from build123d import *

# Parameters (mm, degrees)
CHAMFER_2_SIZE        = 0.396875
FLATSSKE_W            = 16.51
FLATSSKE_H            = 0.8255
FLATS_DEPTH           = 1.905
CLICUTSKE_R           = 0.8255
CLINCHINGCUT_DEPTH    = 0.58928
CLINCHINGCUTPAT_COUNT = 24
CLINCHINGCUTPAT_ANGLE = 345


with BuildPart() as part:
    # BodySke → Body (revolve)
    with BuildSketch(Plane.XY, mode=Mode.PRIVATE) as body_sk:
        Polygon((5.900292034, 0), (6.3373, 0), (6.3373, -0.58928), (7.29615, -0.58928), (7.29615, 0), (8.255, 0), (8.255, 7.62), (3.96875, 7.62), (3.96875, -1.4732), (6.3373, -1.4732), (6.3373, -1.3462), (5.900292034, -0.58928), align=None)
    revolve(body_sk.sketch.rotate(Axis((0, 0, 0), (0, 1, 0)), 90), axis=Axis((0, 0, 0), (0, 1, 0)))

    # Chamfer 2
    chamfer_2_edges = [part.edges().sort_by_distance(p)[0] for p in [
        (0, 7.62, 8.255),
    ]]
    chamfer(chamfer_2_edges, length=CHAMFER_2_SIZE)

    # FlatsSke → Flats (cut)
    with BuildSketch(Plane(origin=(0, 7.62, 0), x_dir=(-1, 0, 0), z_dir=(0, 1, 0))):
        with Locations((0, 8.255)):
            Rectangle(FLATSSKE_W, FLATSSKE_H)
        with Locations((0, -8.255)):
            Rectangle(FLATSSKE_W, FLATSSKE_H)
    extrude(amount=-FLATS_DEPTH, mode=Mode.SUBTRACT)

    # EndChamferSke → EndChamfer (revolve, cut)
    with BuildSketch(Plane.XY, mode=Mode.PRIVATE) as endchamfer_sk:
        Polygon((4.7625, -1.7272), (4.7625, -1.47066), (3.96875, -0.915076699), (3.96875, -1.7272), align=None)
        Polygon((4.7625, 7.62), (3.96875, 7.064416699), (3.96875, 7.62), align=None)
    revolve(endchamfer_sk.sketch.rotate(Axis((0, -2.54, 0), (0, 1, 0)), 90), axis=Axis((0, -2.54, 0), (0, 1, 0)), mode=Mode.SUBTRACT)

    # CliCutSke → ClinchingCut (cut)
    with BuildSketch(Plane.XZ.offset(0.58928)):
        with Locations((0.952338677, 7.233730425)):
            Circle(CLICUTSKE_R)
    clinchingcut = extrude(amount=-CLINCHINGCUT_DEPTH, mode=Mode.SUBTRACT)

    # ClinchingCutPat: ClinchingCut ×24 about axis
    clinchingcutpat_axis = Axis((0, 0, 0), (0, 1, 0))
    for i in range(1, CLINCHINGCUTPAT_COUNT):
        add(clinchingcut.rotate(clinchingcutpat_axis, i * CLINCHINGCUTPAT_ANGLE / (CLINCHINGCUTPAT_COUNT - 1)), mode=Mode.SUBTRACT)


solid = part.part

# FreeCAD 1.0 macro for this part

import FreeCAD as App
import Part
import Sketcher
Q = App.Units.Quantity


def edges_at(feature, points):
    """Names of the edges that pass closest to the given points."""
    edges = feature.Shape.Edges
    near = lambda p: min(range(len(edges)), key=lambda i: edges[i].distToShape(Part.Vertex(*p))[0])
    return sorted({f"Edge{near(p) + 1}" for p in points})

doc = App.newDocument("Part")
body = doc.addObject("PartDesign::Body", "Body")

# Sketch on XY plane
sketch1 = body.newObject("Sketcher::SketchObject", "Sketch")
sketch1.AttachmentSupport = (doc.getObject("XY_Plane"), [""])
sketch1.MapMode = "FlatFace"
sketch1.addGeometry([
    Part.LineSegment(App.Vector(5.9, 0, 0), App.Vector(6.34, 0, 0)),  # 0
    Part.LineSegment(App.Vector(6.34, 0, 0), App.Vector(6.34, -0.59, 0)),  # 1
    Part.LineSegment(App.Vector(6.34, -0.59, 0), App.Vector(7.3, -0.59, 0)),  # 2
    Part.LineSegment(App.Vector(7.3, -0.59, 0), App.Vector(7.3, 0, 0)),  # 3
    Part.LineSegment(App.Vector(7.3, 0, 0), App.Vector(8.26, 0, 0)),  # 4
    Part.LineSegment(App.Vector(8.26, 0, 0), App.Vector(8.26, 7.62, 0)),  # 5
    Part.LineSegment(App.Vector(8.26, 7.62, 0), App.Vector(3.97, 7.62, 0)),  # 6
    Part.LineSegment(App.Vector(3.97, 7.62, 0), App.Vector(3.97, -1.47, 0)),  # 7
    Part.LineSegment(App.Vector(3.97, -1.47, 0), App.Vector(6.34, -1.47, 0)),  # 8
    Part.LineSegment(App.Vector(6.34, -1.47, 0), App.Vector(6.34, -1.35, 0)),  # 9
    Part.LineSegment(App.Vector(6.34, -1.35, 0), App.Vector(5.9, -0.59, 0)),  # 10
    Part.LineSegment(App.Vector(5.9, -0.59, 0), App.Vector(5.9, 0, 0)),  # 11
], False)
sketch1.addConstraint([
    Sketcher.Constraint("Coincident", 0, 2, 1, 1),
    Sketcher.Constraint("Coincident", 1, 2, 2, 1),
    Sketcher.Constraint("Coincident", 2, 2, 3, 1),
    Sketcher.Constraint("Coincident", 3, 2, 4, 1),
    Sketcher.Constraint("Coincident", 4, 2, 5, 1),
    Sketcher.Constraint("Coincident", 5, 2, 6, 1),
    Sketcher.Constraint("Coincident", 6, 2, 7, 1),
    Sketcher.Constraint("Coincident", 7, 2, 8, 1),
    Sketcher.Constraint("Coincident", 8, 2, 9, 1),
    Sketcher.Constraint("Coincident", 9, 2, 10, 1),
    Sketcher.Constraint("Coincident", 10, 2, 11, 1),
    Sketcher.Constraint("Coincident", 11, 2, 0, 1),
    Sketcher.Constraint("Horizontal", 0),
    Sketcher.Constraint("Vertical", 1),
    Sketcher.Constraint("Horizontal", 2),
    Sketcher.Constraint("Vertical", 3),
    Sketcher.Constraint("Horizontal", 4),
    Sketcher.Constraint("Vertical", 5),
    Sketcher.Constraint("Horizontal", 6),
    Sketcher.Constraint("Vertical", 7),
    Sketcher.Constraint("Horizontal", 8),
    Sketcher.Constraint("Vertical", 9),
    Sketcher.Constraint("Vertical", 11),
    Sketcher.Constraint("PointOnObject", 0, 2, -1),
    Sketcher.Constraint("PointOnObject", 3, 2, -1),
    Sketcher.Constraint("Horizontal", 2, 2, 10, 2),
    Sketcher.Constraint("Vertical", 1, 2, 8, 2),
    Sketcher.Constraint("Equal", 2, 4),
    Sketcher.Constraint("DistanceY", 5, 1, 5, 2, Q("0.3 in")),
    Sketcher.Constraint("Angle", 10, Q("120 deg")),
    Sketcher.Constraint("DistanceY", 7, 2, 7, 1, Q("0.358 in")),
    Sketcher.Constraint("DistanceY", 9, 1, 9, 2, Q("0.005 in")),
    Sketcher.Constraint("DistanceY", 1, 2, 1, 1, Q("0.0232 in")),
    Sketcher.Constraint("DistanceX", -1, 1, 4, 2, Q("0.325 in")),
    Sketcher.Constraint("DistanceX", -1, 1, 6, 2, Q("0.15625 in")),
    Sketcher.Constraint("DistanceX", 6, 2, 3, 2, Q("0.131 in")),
])
revolution = body.newObject("PartDesign::Revolution", "Revolution")
revolution.Profile = sketch1
revolution.ReferenceAxis = (sketch1, ["V_Axis"])
revolution.Angle = 360
doc.recompute()

chamfer = body.newObject("PartDesign::Chamfer", "Chamfer")
chamfer.Base = (revolution, edges_at(revolution, [(0, 7.62, 8.255)]))
chamfer.Size = Q("0.015625 in")

# Sketch on XZ plane
sketch2 = body.newObject("Sketcher::SketchObject", "Sketch001")
sketch2.AttachmentSupport = (doc.getObject("XZ_Plane"), [""])
sketch2.MapMode = "FlatFace"
sketch2.AttachmentOffset = App.Placement(App.Vector(0, 0, -0.3 * 25.4), App.Rotation())
sketch2.addGeometry([
    Part.LineSegment(App.Vector(8.3, 8.7, 0), App.Vector(8.3, 7.8, 0)),  # 0
    Part.LineSegment(App.Vector(8.3, 7.8, 0), App.Vector(-8.3, 7.8, 0)),  # 1
    Part.LineSegment(App.Vector(-8.3, 7.8, 0), App.Vector(-8.3, 8.7, 0)),  # 2
    Part.LineSegment(App.Vector(-8.3, 8.7, 0), App.Vector(8.3, 8.7, 0)),  # 3
    Part.LineSegment(App.Vector(8.3, -7.8, 0), App.Vector(8.3, -8.7, 0)),  # 4
    Part.LineSegment(App.Vector(8.3, -8.7, 0), App.Vector(-8.3, -8.7, 0)),  # 5
    Part.LineSegment(App.Vector(-8.3, -8.7, 0), App.Vector(-8.3, -7.8, 0)),  # 6
    Part.LineSegment(App.Vector(-8.3, -7.8, 0), App.Vector(8.3, -7.8, 0)),  # 7
], False)
sketch2.addConstraint([
    Sketcher.Constraint("Coincident", 0, 2, 1, 1),
    Sketcher.Constraint("Coincident", 1, 2, 2, 1),
    Sketcher.Constraint("Coincident", 2, 2, 3, 1),
    Sketcher.Constraint("Coincident", 3, 2, 0, 1),
    Sketcher.Constraint("Coincident", 4, 2, 5, 1),
    Sketcher.Constraint("Coincident", 5, 2, 6, 1),
    Sketcher.Constraint("Coincident", 6, 2, 7, 1),
    Sketcher.Constraint("Coincident", 7, 2, 4, 1),
    Sketcher.Constraint("Vertical", 0),
    Sketcher.Constraint("Horizontal", 1),
    Sketcher.Constraint("Vertical", 2),
    Sketcher.Constraint("Horizontal", 3),
    Sketcher.Constraint("Vertical", 4),
    Sketcher.Constraint("Horizontal", 5),
    Sketcher.Constraint("Vertical", 6),
    Sketcher.Constraint("Horizontal", 7),
    Sketcher.Constraint("Symmetric", 2, 2, 4, 2, -1, 1),
    Sketcher.Constraint("Symmetric", 0, 2, 6, 2, -1, 1),
    Sketcher.Constraint("Vertical", 3, 2, 4, 2),
    Sketcher.Constraint("DistanceX", 1, 2, 1, 1, Q("0.65 in")),
    Sketcher.Constraint("DistanceY", 4, 2, 0, 2, Q("0.65 in")),
    Sketcher.Constraint("DistanceY", 0, 2, 0, 1, Q("0.0325 in")),
])
pocket1 = body.newObject("PartDesign::Pocket", "Pocket")
pocket1.Profile = sketch2
pocket1.Length = Q("0.075 in")
pocket1.Reversed = True

# Sketch on XY plane
sketch3 = body.newObject("Sketcher::SketchObject", "Sketch002")
sketch3.AttachmentSupport = (doc.getObject("XY_Plane"), [""])
sketch3.MapMode = "FlatFace"
sketch3.addGeometry([
    Part.LineSegment(App.Vector(4.76, -1.73, 0), App.Vector(4.76, -1.47, 0)),  # 0
    Part.LineSegment(App.Vector(4.76, -1.47, 0), App.Vector(3.97, -0.92, 0)),  # 1
    Part.LineSegment(App.Vector(3.97, -0.92, 0), App.Vector(3.97, -1.73, 0)),  # 2
    Part.LineSegment(App.Vector(3.97, -1.73, 0), App.Vector(4.76, -1.73, 0)),  # 3
    Part.LineSegment(App.Vector(3.97, 7.06, 0), App.Vector(4.76, 7.62, 0)),  # 4
    Part.LineSegment(App.Vector(4.76, 7.62, 0), App.Vector(3.97, 7.62, 0)),  # 5
    Part.LineSegment(App.Vector(3.97, 7.62, 0), App.Vector(3.97, 7.06, 0)),  # 6
], False)
sketch3.addConstraint([
    Sketcher.Constraint("Coincident", 0, 2, 1, 1),
    Sketcher.Constraint("Coincident", 1, 2, 2, 1),
    Sketcher.Constraint("Coincident", 2, 2, 3, 1),
    Sketcher.Constraint("Coincident", 3, 2, 0, 1),
    Sketcher.Constraint("Coincident", 4, 2, 5, 1),
    Sketcher.Constraint("Coincident", 5, 2, 6, 1),
    Sketcher.Constraint("Coincident", 6, 2, 4, 1),
    Sketcher.Constraint("Vertical", 0),
    Sketcher.Constraint("Vertical", 2),
    Sketcher.Constraint("Horizontal", 3),
    Sketcher.Constraint("Horizontal", 5),
    Sketcher.Constraint("Vertical", 6),
    Sketcher.Constraint("Vertical", 3, 2, 4, 2),
    Sketcher.Constraint("Vertical", 2, 2, 5, 2),
    Sketcher.Constraint("Equal", 1, 4),
    Sketcher.Constraint("DistanceY", -1, 1, 4, 2, Q("0.3 in")),
    Sketcher.Constraint("DistanceX", 3, 1, 3, 2, Q("0.03125 in")),
    Sketcher.Constraint("Angle", 1, Q("145.01 deg")),
    Sketcher.Constraint("DistanceY", 0, 1, 0, 2, Q("0.0101 in")),
    Sketcher.Constraint("DistanceX", -1, 1, 0, 2, Q("0.1875 in")),
    Sketcher.Constraint("DistanceY", 2, 2, -1, 1, Q("0.068 in")),
])
groove = body.newObject("PartDesign::Groove", "Groove")
groove.Profile = sketch3
groove.ReferenceAxis = (sketch3, ["V_Axis"])
groove.Angle = 360

# Sketch on XZ plane
sketch4 = body.newObject("Sketcher::SketchObject", "Sketch003")
sketch4.AttachmentSupport = (doc.getObject("XZ_Plane"), [""])
sketch4.MapMode = "FlatFace"
sketch4.AttachmentOffset = App.Placement(App.Vector(0, 0, 0.0232 * 25.4), App.Rotation())
sketch4.addGeometry(Part.Circle(App.Vector(1, 7.2, 0), App.Vector(0, 0, 1), 0.8), False)
sketch4.addConstraint([
    Sketcher.Constraint("Diameter", 0, Q("0.065 in")),
    Sketcher.Constraint("DistanceX", -1, 1, 0, 3, 0.952339),
    Sketcher.Constraint("DistanceY", -1, 1, 0, 3, 7.23373),
])
pocket2 = body.newObject("PartDesign::Pocket", "Pocket001")
pocket2.Profile = sketch4
pocket2.Length = Q("0.0232 in")
doc.recompute()

polarpattern = body.newObject("PartDesign::PolarPattern", "PolarPattern")
polarpattern.Originals = [pocket2]
polarpattern.Axis = (doc.getObject("Y_Axis"), [""])
polarpattern.Angle = 360
polarpattern.Occurrences = 24
body.Tip = polarpattern

doc.recompute()
